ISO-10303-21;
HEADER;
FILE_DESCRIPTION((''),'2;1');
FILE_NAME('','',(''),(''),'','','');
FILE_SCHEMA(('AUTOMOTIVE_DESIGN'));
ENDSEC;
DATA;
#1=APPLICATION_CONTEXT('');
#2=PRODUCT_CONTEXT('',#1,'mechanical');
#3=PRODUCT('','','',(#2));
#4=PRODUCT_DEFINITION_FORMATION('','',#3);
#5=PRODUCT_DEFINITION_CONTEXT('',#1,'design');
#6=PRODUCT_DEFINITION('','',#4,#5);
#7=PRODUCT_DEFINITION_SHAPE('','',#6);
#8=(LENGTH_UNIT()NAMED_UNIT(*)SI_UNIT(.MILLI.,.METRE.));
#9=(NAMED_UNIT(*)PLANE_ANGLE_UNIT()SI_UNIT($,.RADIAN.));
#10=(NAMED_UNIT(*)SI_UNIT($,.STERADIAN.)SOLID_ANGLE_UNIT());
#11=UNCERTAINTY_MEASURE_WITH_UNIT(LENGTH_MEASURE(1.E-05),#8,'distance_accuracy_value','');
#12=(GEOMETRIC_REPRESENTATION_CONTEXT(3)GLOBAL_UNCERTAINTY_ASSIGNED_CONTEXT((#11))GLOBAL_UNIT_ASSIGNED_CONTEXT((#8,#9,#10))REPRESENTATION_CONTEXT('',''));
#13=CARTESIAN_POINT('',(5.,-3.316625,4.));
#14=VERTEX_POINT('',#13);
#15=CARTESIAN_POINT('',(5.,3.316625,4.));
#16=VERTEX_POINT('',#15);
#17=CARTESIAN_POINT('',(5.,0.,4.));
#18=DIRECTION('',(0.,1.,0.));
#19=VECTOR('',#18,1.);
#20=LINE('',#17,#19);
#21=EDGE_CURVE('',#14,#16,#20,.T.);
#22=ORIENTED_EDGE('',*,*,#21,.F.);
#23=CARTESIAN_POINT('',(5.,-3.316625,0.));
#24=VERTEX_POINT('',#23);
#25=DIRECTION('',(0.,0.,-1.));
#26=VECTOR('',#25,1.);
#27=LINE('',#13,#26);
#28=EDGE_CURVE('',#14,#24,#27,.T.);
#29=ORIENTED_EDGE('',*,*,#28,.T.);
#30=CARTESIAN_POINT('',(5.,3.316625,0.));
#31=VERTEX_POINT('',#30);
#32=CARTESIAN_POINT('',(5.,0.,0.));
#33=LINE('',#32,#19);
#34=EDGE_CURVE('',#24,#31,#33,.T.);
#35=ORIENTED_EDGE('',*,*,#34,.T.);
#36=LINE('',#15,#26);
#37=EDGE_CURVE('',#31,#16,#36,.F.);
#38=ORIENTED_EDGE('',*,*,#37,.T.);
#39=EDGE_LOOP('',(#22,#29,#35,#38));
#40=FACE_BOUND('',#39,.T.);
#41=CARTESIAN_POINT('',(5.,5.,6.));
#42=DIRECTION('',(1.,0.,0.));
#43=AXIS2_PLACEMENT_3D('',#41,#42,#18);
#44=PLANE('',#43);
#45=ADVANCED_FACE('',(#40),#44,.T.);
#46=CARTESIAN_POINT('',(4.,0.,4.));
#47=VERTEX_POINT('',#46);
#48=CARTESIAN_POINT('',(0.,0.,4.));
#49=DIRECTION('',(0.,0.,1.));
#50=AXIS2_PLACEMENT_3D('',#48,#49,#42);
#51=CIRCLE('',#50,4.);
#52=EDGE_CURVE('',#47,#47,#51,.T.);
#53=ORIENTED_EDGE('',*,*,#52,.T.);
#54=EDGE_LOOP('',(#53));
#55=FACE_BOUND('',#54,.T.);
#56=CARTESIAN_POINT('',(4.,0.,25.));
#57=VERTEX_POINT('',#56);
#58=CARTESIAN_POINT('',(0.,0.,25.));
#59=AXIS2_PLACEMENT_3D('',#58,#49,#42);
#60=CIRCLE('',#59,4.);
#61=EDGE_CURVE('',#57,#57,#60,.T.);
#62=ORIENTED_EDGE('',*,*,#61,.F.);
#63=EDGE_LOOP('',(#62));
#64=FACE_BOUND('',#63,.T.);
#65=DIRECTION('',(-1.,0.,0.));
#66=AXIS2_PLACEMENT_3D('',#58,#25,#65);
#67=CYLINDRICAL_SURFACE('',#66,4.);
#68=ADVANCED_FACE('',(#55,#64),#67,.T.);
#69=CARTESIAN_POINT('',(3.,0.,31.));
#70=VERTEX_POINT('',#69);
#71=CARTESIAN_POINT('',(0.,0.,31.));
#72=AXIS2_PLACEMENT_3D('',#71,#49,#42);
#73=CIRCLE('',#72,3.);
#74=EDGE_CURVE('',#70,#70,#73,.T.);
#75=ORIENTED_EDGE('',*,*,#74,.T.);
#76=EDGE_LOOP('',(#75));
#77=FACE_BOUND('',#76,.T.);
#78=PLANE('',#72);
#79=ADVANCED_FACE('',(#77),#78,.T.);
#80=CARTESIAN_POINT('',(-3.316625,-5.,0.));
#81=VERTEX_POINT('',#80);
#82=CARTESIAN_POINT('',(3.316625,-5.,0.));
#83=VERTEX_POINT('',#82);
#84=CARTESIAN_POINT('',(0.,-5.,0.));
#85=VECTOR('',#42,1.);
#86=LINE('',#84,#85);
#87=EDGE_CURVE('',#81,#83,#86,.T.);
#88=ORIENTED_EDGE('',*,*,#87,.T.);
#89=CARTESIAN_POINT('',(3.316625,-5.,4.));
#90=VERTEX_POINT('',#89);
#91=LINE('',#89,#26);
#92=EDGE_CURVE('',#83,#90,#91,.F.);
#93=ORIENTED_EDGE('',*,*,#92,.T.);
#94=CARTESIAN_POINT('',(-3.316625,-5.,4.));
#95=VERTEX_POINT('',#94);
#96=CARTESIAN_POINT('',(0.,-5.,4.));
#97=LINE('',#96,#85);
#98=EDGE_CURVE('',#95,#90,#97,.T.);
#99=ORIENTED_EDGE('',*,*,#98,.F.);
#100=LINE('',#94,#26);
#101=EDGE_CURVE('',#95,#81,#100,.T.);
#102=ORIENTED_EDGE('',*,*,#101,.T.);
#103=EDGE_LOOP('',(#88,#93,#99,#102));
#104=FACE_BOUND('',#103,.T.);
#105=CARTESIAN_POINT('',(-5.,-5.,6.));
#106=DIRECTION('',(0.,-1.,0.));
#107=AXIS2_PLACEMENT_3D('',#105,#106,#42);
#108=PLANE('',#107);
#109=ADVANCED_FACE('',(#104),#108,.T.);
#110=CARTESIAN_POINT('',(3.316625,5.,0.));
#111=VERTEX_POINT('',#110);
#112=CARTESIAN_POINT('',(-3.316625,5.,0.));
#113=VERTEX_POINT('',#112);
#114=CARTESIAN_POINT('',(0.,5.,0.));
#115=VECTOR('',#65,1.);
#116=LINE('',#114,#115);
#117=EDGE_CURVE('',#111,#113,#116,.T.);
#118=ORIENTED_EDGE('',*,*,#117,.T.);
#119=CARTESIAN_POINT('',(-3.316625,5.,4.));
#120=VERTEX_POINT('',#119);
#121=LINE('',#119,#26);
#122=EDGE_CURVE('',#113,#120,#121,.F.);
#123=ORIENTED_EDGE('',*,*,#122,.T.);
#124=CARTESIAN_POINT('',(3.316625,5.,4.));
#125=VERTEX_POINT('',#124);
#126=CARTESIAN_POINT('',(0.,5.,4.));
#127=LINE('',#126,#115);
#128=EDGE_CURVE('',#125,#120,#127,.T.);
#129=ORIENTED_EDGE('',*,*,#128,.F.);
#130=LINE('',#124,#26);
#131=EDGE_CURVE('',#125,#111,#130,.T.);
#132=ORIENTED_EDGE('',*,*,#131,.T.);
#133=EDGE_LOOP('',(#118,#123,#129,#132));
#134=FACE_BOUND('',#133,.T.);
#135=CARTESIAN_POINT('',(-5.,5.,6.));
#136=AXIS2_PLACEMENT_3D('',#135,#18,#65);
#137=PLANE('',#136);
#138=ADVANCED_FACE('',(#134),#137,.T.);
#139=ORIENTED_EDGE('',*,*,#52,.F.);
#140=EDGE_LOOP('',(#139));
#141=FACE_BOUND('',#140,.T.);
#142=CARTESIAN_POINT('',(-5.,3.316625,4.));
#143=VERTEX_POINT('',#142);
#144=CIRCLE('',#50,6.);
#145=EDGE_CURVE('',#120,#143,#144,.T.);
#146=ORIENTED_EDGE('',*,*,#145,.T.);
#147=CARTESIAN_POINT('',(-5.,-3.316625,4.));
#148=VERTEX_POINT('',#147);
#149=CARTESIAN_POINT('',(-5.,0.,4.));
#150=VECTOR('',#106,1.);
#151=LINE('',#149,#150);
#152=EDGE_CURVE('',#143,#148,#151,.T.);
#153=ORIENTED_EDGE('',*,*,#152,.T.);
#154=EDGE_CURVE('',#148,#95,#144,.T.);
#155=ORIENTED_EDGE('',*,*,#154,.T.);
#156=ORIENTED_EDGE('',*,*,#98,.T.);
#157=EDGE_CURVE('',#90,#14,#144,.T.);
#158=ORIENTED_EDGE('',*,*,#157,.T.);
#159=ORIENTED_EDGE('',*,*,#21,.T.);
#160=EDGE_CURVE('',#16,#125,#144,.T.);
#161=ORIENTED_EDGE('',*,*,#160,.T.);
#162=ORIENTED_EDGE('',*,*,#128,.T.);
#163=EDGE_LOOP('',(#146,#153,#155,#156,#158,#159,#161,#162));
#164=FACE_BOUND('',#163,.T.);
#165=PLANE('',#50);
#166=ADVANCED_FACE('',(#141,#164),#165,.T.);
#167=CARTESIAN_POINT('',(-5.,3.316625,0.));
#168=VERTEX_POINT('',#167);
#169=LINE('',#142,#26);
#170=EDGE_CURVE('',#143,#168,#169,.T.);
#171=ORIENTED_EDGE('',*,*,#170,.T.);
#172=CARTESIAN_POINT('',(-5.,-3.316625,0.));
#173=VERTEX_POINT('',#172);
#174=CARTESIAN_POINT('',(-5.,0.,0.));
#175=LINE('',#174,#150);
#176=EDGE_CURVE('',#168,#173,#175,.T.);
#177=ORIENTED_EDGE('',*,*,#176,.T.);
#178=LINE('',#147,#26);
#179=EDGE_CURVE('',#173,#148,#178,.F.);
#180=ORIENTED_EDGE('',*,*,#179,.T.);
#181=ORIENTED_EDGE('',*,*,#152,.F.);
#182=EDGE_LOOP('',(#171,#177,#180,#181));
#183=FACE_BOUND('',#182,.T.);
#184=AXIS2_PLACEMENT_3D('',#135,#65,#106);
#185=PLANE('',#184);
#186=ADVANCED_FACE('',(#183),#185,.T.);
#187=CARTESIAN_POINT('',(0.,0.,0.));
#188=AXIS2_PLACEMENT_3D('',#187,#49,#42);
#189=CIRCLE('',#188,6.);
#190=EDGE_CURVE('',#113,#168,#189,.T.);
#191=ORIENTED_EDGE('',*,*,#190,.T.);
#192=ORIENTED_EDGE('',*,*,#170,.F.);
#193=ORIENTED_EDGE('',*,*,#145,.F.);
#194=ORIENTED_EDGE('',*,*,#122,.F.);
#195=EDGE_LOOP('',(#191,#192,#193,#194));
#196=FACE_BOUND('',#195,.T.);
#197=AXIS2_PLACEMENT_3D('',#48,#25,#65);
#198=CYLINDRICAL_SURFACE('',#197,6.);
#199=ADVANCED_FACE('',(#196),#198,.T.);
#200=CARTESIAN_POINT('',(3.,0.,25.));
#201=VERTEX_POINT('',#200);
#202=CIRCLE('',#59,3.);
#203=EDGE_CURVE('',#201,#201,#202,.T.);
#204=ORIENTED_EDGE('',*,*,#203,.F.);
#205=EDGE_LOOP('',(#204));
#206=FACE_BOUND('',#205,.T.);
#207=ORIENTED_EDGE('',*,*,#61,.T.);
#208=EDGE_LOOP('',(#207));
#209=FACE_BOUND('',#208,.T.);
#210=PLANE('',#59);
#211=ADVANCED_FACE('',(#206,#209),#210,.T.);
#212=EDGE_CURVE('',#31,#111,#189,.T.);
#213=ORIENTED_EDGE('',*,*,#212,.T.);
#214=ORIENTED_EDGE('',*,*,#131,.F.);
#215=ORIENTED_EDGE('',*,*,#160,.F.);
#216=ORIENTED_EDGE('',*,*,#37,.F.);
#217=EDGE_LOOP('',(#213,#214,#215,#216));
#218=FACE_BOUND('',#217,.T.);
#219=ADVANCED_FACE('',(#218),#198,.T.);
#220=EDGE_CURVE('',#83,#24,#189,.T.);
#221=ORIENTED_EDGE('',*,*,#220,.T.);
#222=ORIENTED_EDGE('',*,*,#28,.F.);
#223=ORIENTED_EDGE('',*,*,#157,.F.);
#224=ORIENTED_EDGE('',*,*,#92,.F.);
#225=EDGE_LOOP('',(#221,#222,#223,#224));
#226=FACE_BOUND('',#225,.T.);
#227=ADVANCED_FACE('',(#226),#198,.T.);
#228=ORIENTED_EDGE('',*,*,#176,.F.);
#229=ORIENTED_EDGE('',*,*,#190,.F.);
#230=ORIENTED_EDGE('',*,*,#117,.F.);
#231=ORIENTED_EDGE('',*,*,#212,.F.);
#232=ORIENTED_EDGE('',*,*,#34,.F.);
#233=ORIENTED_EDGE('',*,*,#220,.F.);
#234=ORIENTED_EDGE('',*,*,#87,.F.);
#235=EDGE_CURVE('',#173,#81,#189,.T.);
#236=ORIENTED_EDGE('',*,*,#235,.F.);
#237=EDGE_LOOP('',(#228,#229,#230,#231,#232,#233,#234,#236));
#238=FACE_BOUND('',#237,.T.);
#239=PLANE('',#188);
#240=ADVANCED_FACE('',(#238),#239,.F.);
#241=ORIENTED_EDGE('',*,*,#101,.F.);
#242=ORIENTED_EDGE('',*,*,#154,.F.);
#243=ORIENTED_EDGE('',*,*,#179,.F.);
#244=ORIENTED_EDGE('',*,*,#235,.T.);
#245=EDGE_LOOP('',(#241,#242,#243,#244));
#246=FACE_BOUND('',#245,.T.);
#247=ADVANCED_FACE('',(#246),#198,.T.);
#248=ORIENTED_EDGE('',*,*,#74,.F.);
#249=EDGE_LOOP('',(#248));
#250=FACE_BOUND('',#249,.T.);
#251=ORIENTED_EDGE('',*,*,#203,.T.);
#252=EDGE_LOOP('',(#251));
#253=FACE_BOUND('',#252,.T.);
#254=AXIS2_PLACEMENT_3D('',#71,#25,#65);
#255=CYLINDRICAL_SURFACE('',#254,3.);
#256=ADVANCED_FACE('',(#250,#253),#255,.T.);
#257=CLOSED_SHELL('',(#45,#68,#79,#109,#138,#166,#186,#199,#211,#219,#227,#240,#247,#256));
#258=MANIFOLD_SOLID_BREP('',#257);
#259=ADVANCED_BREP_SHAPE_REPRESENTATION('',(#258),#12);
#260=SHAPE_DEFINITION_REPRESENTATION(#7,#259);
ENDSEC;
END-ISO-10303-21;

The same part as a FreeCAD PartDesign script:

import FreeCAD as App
import Part
import Sketcher
from FreeCAD import Vector


def add_polygon(sketch, points):
    """Adds a closed chain of lines whose ends are joined by coincident constraints."""
    first, n = sketch.GeometryCount, len(points)
    for a, b in zip(points, points[1:] + points[:1]):
        sketch.addGeometry(Part.LineSegment(App.Vector(*a, 0), App.Vector(*b, 0)), False)
    for i in range(n):
        sketch.addConstraint(Sketcher.Constraint("Coincident", first + i, 2, first + (i + 1) % n, 1))

doc = App.newDocument("Part")
params = doc.addObject("Spreadsheet::Sheet", "Params")
for row, (alias, value) in enumerate([
    ("sketch1_diameter", "12 mm"),
    ("pad1_length", "4 mm"),
    ("sketch2_diameter", "8 mm"),
    ("pad2_length", "21 mm"),
    ("sketch3_diameter", "6 mm"),
    ("pad3_length", "6 mm"),
    ("sketch4_diameter", "15 mm"),
    ("sketch4_width", "10 mm"),
    ("pocket1_length", "6 mm"),
], start=1):
    params.set(f"A{row}", alias)
    params.set(f"B{row}", "=" + value)
    params.setAlias(f"B{row}", alias)

body = doc.addObject("PartDesign::Body", "Body")

sketch1 = doc.addObject("Sketcher::SketchObject", "Sketch")
body.addObject(sketch1)
sketch1.AttachmentSupport = (doc.XY_Plane, [""])
sketch1.MapMode = "FlatFace"
sketch1.addGeometry(Part.Circle(Vector(0, 0, 0), Vector(0, 0, 1), 6), False)
sketch1.addConstraint([
    Sketcher.Constraint("Coincident", 0, 3, -1, 1),
    Sketcher.Constraint("Diameter", 0, 12.0),
])
sketch1.setExpression("Constraints[1]", "Params.sketch1_diameter")
pad1 = doc.addObject("PartDesign::Pad", "Pad")
body.addObject(pad1)
pad1.Profile = sketch1
pad1.setExpression("Length", "Params.pad1_length")

sketch2 = doc.addObject("Sketcher::SketchObject", "Sketch001")
body.addObject(sketch2)
sketch2.AttachmentSupport = (doc.XY_Plane, [""])
sketch2.MapMode = "FlatFace"
sketch2.AttachmentOffset = App.Placement(Vector(0, 0, 4), App.Rotation())
sketch2.addGeometry(Part.Circle(Vector(0, 0, 0), Vector(0, 0, 1), 4), False)
sketch2.addConstraint([
    Sketcher.Constraint("Coincident", 0, 3, -1, 1),
    Sketcher.Constraint("Diameter", 0, 8.0),
])
sketch2.setExpression("Constraints[1]", "Params.sketch2_diameter")
pad2 = doc.addObject("PartDesign::Pad", "Pad001")
body.addObject(pad2)
pad2.Profile = sketch2
pad2.setExpression("Length", "Params.pad2_length")

sketch3 = doc.addObject("Sketcher::SketchObject", "Sketch002")
body.addObject(sketch3)
sketch3.AttachmentSupport = (doc.XY_Plane, [""])
sketch3.MapMode = "FlatFace"
sketch3.AttachmentOffset = App.Placement(Vector(0, 0, 25), App.Rotation())
sketch3.addGeometry(Part.Circle(Vector(0, 0, 0), Vector(0, 0, 1), 3), False)
sketch3.addConstraint([
    Sketcher.Constraint("Coincident", 0, 3, -1, 1),
    Sketcher.Constraint("Diameter", 0, 6.0),
])
sketch3.setExpression("Constraints[1]", "Params.sketch3_diameter")
pad3 = doc.addObject("PartDesign::Pad", "Pad002")
body.addObject(pad3)
pad3.Profile = sketch3
pad3.setExpression("Length", "Params.pad3_length")

sketch4 = doc.addObject("Sketcher::SketchObject", "Sketch003")
body.addObject(sketch4)
sketch4.AttachmentSupport = (doc.XY_Plane, [""])
sketch4.MapMode = "FlatFace"
sketch4.addGeometry(Part.Circle(Vector(0, 0, 0), Vector(0, 0, 1), 8), False)
add_polygon(sketch4, [(-5, -5), (5, -5), (5, 5), (-5, 5)])
sketch4.addConstraint([
    Sketcher.Constraint("Horizontal", 1),
    Sketcher.Constraint("Vertical", 2),
    Sketcher.Constraint("Horizontal", 3),
    Sketcher.Constraint("Vertical", 4),
    Sketcher.Constraint("Coincident", 0, 3, -1, 1),
    Sketcher.Constraint("Symmetric", 1, 2, 3, 2, -1, 1),
    Sketcher.Constraint("Equal", 3, 2),
    Sketcher.Constraint("Diameter", 0, 15.0),
    Sketcher.Constraint("DistanceX", 1, 1, 1, 2, 10.0),
])
sketch4.setExpression("Constraints[11]", "Params.sketch4_diameter")
sketch4.setExpression("Constraints[12]", "Params.sketch4_width")
pocket1 = doc.addObject("PartDesign::Pocket", "Pocket")
body.addObject(pocket1)
pocket1.Profile = sketch4
pocket1.setExpression("Length", "Params.pocket1_length")
pocket1.Reversed = True

doc.recompute()
